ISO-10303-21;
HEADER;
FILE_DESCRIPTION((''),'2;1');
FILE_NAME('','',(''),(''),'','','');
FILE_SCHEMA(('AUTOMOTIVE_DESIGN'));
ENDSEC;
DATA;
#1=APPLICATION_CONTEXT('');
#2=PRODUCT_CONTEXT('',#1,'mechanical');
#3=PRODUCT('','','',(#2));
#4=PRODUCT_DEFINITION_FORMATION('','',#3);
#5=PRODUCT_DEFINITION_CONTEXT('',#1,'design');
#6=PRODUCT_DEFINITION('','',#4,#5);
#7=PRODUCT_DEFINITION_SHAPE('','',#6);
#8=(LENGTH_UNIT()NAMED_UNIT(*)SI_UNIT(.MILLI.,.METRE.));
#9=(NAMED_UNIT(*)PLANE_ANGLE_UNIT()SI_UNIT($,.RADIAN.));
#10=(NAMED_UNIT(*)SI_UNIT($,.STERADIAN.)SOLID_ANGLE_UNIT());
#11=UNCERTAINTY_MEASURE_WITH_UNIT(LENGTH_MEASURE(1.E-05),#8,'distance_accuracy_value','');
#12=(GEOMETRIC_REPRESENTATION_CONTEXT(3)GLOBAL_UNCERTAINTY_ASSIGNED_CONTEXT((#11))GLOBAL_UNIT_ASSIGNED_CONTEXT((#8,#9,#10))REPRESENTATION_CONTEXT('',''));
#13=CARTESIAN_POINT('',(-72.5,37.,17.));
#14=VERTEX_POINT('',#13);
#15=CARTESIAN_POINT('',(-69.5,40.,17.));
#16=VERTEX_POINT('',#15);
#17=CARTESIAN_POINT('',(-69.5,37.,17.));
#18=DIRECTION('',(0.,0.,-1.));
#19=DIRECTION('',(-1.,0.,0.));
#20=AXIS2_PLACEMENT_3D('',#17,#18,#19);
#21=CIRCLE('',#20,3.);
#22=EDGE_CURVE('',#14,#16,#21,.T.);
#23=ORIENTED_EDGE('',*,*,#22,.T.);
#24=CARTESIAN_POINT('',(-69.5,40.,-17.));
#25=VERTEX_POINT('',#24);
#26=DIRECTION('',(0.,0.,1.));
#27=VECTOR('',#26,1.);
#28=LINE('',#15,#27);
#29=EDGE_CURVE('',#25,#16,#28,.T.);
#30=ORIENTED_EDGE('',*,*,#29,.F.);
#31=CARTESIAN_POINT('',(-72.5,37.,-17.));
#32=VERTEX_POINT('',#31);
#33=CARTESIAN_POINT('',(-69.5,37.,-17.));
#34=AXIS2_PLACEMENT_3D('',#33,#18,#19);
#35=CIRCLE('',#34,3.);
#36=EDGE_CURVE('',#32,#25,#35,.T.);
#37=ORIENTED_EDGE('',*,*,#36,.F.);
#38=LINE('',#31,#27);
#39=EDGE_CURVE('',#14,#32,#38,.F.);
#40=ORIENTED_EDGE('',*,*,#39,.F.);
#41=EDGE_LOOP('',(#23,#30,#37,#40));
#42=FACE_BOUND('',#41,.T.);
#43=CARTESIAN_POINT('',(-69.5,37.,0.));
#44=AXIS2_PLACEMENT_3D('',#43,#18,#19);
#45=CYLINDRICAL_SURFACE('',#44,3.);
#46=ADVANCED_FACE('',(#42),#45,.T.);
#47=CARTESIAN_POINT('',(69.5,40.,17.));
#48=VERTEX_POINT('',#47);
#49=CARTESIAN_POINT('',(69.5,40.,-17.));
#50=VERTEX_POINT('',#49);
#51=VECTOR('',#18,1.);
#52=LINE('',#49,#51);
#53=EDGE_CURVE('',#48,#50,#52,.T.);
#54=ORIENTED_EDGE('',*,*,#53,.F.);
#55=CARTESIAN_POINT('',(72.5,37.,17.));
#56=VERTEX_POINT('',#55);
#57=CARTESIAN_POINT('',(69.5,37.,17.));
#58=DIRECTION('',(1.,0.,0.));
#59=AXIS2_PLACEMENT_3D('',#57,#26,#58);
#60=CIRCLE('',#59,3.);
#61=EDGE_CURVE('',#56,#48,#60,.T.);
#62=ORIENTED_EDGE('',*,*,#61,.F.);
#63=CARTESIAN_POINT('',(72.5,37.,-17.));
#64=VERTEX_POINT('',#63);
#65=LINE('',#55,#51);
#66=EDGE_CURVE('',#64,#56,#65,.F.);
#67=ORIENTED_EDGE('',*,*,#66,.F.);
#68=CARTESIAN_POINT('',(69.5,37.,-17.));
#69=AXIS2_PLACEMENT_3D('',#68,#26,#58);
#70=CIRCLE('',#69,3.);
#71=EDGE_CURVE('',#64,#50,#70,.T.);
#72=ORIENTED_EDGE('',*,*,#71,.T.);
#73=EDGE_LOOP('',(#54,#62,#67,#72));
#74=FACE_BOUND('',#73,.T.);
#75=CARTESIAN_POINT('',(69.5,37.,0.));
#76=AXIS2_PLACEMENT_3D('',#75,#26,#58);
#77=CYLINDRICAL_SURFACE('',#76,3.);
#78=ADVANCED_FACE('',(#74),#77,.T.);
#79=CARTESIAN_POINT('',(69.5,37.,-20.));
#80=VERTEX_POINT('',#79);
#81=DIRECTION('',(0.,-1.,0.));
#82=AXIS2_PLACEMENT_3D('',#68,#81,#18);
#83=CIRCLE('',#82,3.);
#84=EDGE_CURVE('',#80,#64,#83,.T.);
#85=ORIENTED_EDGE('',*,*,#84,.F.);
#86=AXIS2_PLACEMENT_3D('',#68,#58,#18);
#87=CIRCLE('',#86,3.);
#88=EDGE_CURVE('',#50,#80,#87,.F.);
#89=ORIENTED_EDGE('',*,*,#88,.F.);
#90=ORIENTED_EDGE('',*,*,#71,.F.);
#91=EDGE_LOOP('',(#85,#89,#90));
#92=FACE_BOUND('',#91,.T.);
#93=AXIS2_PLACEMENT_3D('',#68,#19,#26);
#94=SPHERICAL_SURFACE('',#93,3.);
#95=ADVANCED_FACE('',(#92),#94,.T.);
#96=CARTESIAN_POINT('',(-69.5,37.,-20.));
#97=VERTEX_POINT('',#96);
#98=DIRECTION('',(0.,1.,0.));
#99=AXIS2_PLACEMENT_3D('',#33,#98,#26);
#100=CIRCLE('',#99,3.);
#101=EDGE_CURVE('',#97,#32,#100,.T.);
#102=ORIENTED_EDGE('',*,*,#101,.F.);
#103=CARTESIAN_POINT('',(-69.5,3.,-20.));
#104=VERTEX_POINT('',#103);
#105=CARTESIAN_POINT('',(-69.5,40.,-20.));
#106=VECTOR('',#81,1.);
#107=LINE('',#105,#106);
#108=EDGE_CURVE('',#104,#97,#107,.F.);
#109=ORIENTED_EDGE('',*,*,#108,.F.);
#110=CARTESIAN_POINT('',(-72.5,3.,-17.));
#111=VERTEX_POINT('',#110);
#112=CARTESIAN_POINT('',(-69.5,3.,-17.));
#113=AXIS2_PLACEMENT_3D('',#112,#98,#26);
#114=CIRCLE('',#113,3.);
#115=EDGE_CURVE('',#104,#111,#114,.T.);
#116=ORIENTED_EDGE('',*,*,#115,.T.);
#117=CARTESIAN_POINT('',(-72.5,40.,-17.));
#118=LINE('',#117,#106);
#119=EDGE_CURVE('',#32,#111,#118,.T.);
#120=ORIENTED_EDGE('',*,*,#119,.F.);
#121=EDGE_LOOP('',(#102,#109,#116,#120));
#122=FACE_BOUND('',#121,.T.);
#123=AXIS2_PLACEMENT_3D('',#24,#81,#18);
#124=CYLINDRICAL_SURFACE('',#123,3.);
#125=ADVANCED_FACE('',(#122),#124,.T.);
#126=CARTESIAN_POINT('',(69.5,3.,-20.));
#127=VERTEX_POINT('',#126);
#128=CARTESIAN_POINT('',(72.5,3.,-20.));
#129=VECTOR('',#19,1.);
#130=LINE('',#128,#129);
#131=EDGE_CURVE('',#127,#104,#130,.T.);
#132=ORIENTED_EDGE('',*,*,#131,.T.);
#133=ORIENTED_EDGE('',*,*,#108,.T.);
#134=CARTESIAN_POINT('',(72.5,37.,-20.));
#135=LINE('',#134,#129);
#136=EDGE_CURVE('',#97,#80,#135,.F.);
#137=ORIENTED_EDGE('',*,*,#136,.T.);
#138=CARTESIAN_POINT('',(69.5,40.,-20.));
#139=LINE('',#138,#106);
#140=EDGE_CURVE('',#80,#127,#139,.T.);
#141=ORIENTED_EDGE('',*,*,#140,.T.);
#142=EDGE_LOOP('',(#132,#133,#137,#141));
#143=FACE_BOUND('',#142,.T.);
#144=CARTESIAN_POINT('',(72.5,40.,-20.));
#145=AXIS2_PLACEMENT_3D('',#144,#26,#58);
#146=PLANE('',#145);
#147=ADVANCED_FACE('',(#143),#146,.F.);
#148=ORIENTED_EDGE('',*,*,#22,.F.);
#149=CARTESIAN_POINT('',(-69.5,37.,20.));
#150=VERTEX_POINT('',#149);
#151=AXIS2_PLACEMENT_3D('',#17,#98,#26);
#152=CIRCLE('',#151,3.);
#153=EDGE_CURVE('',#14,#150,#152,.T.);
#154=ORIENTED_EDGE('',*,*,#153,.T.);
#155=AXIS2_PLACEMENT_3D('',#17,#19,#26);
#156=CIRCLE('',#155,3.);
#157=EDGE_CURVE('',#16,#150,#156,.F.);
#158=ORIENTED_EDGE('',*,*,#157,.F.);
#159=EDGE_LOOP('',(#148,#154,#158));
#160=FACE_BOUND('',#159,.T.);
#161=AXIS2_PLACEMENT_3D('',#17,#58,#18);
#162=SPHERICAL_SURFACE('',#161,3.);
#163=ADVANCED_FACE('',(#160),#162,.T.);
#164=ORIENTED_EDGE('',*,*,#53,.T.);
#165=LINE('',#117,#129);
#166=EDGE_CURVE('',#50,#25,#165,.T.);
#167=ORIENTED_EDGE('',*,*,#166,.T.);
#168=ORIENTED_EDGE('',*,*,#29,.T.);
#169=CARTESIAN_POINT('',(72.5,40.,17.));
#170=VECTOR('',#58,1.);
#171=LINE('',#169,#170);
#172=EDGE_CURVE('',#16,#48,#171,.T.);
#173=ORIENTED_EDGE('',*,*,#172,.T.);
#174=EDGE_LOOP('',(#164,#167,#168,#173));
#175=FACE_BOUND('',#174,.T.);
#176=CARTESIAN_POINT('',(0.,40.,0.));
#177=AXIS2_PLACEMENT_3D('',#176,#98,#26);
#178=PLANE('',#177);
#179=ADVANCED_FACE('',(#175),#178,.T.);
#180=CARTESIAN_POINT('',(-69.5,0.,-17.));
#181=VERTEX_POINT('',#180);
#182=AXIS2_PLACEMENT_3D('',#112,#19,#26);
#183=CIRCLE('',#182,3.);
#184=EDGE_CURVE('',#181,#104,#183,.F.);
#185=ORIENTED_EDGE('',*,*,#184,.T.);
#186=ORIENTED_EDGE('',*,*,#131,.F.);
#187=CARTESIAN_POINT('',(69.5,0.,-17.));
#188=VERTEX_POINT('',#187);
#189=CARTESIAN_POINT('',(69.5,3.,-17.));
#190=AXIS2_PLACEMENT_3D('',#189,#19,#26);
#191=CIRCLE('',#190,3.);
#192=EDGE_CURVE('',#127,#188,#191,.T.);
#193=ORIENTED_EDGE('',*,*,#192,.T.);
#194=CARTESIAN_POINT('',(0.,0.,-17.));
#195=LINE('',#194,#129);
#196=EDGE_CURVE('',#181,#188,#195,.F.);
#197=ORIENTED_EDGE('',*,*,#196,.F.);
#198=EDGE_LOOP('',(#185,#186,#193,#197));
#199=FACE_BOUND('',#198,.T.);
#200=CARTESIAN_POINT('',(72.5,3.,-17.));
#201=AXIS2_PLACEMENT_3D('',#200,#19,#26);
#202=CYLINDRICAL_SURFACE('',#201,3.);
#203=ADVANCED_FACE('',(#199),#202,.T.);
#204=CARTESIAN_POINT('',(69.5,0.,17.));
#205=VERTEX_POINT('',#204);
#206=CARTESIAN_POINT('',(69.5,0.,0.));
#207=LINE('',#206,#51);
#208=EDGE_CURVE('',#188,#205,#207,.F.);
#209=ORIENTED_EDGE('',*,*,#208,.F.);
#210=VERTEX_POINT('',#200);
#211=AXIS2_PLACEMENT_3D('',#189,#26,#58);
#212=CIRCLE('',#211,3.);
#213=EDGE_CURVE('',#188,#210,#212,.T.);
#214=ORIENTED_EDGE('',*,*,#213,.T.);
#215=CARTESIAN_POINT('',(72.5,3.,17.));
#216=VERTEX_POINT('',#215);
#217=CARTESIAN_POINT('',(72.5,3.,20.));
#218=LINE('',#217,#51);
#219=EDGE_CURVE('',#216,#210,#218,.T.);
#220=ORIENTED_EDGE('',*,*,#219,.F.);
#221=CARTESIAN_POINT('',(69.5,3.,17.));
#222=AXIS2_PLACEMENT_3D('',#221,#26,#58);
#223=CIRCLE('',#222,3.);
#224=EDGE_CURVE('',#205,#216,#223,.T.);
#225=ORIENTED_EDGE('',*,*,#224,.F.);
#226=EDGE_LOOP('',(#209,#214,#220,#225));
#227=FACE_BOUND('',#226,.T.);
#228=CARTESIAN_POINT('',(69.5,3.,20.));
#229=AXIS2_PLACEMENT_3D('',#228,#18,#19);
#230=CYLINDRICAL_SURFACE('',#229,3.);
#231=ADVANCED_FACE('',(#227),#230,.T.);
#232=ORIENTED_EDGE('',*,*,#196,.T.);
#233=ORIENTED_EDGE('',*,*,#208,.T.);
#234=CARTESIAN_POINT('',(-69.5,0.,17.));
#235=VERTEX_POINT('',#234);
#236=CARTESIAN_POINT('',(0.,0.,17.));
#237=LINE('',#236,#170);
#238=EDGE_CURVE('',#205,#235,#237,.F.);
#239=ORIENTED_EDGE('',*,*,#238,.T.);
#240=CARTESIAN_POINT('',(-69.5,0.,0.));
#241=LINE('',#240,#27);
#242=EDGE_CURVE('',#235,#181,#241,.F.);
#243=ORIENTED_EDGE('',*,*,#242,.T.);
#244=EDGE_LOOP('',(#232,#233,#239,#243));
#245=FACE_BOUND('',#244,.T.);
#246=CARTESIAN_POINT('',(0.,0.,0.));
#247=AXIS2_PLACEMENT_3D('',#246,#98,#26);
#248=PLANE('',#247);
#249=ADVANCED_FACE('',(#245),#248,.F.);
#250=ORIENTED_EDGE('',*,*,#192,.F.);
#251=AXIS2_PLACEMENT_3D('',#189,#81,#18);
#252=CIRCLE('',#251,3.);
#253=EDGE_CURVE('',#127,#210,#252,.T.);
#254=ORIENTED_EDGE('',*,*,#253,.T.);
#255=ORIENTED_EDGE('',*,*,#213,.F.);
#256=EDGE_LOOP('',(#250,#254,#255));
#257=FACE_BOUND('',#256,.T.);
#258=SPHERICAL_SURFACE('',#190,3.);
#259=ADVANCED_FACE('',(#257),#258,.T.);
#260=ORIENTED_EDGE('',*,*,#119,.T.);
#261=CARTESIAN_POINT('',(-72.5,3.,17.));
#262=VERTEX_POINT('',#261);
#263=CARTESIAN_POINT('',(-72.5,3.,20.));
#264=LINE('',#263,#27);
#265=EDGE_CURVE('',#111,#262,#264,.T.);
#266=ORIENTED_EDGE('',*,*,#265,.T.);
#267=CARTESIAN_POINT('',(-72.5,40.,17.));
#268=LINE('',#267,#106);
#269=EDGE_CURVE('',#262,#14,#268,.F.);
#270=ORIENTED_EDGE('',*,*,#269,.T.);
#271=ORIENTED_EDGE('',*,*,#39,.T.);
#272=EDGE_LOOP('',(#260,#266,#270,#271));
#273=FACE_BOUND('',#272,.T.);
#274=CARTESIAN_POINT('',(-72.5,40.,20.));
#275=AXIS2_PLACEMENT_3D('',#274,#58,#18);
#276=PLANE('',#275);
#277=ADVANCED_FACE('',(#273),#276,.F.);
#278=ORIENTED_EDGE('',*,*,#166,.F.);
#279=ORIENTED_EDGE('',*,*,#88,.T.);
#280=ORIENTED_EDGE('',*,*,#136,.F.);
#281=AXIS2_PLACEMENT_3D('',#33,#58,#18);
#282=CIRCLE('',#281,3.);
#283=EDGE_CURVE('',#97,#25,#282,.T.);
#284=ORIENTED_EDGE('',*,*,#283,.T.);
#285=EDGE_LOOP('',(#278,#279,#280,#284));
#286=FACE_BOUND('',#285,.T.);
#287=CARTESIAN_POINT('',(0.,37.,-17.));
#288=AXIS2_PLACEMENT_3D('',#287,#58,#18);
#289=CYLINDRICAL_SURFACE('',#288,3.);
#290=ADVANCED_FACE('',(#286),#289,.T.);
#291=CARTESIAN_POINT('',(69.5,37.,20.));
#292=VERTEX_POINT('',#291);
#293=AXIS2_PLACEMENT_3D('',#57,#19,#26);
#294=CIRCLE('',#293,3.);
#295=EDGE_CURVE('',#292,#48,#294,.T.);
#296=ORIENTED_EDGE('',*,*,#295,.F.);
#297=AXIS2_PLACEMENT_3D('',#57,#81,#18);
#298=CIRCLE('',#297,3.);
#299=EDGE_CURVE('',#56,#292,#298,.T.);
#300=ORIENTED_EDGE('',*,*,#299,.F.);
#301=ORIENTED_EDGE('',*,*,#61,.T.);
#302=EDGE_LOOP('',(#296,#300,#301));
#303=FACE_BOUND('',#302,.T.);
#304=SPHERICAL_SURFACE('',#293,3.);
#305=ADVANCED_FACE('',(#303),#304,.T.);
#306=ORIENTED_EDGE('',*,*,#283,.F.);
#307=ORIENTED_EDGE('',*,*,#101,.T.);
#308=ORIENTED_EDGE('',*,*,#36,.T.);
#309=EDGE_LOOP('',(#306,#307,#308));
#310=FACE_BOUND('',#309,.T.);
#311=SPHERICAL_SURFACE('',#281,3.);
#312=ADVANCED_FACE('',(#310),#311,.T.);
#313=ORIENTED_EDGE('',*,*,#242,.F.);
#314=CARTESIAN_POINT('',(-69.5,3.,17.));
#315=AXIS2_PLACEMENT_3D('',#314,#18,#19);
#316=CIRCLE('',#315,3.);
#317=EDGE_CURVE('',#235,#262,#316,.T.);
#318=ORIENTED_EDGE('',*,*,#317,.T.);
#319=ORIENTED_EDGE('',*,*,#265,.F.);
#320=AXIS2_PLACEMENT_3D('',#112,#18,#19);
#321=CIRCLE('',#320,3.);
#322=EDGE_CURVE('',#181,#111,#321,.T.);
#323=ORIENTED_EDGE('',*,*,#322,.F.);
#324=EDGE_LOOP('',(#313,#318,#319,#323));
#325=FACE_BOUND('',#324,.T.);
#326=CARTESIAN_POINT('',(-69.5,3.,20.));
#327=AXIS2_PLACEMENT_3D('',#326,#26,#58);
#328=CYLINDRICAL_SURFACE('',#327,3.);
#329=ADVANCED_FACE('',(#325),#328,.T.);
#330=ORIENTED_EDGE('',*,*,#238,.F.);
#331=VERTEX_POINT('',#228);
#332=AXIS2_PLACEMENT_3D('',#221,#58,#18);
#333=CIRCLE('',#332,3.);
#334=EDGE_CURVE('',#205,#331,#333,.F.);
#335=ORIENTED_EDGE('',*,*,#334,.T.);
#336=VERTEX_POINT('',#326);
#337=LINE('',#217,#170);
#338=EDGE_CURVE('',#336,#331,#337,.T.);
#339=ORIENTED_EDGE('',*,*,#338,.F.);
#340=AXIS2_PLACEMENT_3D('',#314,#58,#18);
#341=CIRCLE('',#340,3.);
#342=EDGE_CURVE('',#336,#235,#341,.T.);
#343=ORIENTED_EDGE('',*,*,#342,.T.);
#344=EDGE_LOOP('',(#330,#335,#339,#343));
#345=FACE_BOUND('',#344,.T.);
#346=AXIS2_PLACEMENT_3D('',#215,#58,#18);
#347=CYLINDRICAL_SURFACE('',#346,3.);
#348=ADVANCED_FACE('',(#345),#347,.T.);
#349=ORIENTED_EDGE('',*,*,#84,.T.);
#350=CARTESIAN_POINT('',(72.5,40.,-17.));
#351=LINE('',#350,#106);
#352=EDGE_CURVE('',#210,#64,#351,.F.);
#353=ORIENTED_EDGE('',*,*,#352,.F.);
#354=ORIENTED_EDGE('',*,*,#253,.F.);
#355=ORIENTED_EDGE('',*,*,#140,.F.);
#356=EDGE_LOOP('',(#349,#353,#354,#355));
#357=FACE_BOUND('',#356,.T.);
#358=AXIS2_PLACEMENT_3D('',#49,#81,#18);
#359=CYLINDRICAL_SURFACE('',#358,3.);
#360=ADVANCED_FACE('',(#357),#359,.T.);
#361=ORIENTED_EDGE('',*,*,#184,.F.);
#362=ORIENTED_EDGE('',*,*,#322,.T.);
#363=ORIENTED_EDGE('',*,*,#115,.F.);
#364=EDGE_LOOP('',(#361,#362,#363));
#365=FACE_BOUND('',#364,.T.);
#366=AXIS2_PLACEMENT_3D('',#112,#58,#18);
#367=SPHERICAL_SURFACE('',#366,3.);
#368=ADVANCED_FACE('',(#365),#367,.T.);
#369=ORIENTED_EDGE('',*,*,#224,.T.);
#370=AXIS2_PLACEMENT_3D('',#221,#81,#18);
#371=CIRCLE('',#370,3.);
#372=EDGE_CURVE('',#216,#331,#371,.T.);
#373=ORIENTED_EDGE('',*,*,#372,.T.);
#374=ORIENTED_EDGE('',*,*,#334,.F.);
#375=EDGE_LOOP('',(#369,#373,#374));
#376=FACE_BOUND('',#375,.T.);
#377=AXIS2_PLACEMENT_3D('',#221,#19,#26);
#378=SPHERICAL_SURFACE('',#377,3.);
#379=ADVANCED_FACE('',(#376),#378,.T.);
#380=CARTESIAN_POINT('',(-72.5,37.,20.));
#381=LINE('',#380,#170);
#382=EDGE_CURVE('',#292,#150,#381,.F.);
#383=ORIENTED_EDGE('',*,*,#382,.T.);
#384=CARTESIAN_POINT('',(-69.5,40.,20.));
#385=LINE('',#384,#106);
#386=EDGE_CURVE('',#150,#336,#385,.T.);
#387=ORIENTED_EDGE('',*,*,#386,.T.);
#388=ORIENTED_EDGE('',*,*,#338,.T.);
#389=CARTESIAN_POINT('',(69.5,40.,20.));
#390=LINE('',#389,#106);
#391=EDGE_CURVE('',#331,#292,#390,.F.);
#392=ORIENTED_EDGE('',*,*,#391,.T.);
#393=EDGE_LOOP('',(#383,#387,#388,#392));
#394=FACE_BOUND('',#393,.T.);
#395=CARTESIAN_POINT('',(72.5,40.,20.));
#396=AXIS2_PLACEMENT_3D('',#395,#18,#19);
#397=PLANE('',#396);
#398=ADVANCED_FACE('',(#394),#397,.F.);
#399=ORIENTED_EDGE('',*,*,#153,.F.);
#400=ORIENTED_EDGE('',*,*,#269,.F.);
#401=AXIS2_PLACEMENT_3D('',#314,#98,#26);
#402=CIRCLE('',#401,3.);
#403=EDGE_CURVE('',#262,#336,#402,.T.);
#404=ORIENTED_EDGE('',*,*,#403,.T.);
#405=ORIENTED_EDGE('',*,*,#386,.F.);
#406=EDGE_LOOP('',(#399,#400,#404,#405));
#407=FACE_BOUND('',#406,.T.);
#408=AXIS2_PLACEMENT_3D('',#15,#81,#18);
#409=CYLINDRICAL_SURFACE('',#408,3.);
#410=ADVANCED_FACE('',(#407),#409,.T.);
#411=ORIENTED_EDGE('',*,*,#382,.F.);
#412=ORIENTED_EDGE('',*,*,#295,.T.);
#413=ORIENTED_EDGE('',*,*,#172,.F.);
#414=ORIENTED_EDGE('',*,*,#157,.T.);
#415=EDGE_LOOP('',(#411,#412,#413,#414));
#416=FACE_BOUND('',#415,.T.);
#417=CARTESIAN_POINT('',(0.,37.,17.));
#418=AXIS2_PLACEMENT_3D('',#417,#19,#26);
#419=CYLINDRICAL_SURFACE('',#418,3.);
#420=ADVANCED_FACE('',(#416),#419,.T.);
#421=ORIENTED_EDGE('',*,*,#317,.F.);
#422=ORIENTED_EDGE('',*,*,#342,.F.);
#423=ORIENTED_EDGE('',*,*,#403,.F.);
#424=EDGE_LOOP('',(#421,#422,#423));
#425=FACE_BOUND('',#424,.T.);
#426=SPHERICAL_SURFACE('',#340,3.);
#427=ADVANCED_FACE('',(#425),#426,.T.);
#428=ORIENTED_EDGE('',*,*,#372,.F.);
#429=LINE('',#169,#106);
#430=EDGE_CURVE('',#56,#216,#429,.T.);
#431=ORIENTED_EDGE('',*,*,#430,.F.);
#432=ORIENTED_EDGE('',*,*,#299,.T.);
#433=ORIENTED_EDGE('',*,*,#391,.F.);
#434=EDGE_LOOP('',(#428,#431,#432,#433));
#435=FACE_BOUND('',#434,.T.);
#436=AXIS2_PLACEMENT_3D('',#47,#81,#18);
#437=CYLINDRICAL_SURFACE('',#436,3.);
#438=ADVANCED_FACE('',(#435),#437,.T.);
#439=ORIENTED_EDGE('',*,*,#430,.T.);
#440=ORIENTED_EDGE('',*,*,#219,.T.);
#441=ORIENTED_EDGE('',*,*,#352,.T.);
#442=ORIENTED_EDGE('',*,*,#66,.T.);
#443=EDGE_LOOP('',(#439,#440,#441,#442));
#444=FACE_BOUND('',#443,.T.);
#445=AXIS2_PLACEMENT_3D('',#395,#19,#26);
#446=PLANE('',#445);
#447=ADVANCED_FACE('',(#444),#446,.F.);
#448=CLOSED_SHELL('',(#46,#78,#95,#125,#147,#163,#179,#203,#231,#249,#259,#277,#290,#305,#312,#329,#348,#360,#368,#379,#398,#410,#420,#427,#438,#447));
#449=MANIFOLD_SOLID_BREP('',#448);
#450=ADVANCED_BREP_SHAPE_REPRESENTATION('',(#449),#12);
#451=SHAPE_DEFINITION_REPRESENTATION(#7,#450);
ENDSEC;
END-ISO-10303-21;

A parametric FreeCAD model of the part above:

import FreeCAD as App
import Part
import Sketcher
from FreeCAD import Vector


def edges_at(feature, points):
    """Names of the edges that pass closest to the given points."""
    edges = feature.Shape.Edges
    near = lambda p: min(range(len(edges)), key=lambda i: edges[i].distToShape(Part.Vertex(*p))[0])
    return sorted({f"Edge{near(p) + 1}" for p in points})

doc = App.newDocument("Part")
body = doc.addObject("PartDesign::Body", "Body")

# Sketch on XZ plane
sketch1 = body.newObject("Sketcher::SketchObject", "Sketch")
sketch1.AttachmentSupport = (doc.getObject("XZ_Plane"), [""])
sketch1.MapMode = "FlatFace"
sketch1.addGeometry([
    Part.LineSegment(Vector(-72, -20, 0), Vector(-72, 20, 0)),
    Part.LineSegment(Vector(-72, 20, 0), Vector(72, 20, 0)),
    Part.LineSegment(Vector(72, 20, 0), Vector(72, -20, 0)),
    Part.LineSegment(Vector(72, -20, 0), Vector(-72, -20, 0)),
], False)
sketch1.addConstraint([
    Sketcher.Constraint("Coincident", 0, 2, 1, 1),
    Sketcher.Constraint("Coincident", 1, 2, 2, 1),
    Sketcher.Constraint("Coincident", 2, 2, 3, 1),
    Sketcher.Constraint("Coincident", 3, 2, 0, 1),
    Sketcher.Constraint("Vertical", 0),
    Sketcher.Constraint("Horizontal", 1),
    Sketcher.Constraint("Vertical", 2),
    Sketcher.Constraint("Horizontal", 3),
    Sketcher.Constraint("Symmetric", 0, 2, 2, 2, -1, 1),
    Sketcher.Constraint("DistanceX", 1, 1, 1, 2, 145.0),
    Sketcher.Constraint("DistanceY", 0, 1, 0, 2, 40.0),
])
pad1 = body.newObject("PartDesign::Pad", "Pad")
pad1.Profile = sketch1
pad1.Length = 40
pad1.Reversed = True
doc.recompute()

fillet = body.newObject("PartDesign::Fillet", "Fillet")
fillet.Base = (pad1, edges_at(pad1, [
    (0, 40, -20),
    (0, 0, -20),
    (0, 0, 20),
    (0, 40, 20),
]))
fillet.Radius = 3
doc.recompute()

fillet2 = body.newObject("PartDesign::Fillet", "Fillet001")
fillet2.Base = (fillet, edges_at(fillet, [
    (-72.5, 20, -20),
    (72.5, 20, -20),
    (-72.5, 0, 0),
    (-72.5, 20, 20),
    (-72.5, 40, 0),
    (-72.5, 39.121, 19.121),
    (-72.5, 0.879, 19.121),
    (-72.5, 39.121, -19.121),
    (-72.5, 0.879, -19.121),
    (72.5, 0, 0),
    (72.5, 40, 0),
    (72.5, 20, 20),
    (72.5, 39.121, 19.121),
    (72.5, 0.879, 19.121),
    (72.5, 39.121, -19.121),
    (72.5, 0.879, -19.121),
]))
fillet2.Radius = 3

doc.recompute()
